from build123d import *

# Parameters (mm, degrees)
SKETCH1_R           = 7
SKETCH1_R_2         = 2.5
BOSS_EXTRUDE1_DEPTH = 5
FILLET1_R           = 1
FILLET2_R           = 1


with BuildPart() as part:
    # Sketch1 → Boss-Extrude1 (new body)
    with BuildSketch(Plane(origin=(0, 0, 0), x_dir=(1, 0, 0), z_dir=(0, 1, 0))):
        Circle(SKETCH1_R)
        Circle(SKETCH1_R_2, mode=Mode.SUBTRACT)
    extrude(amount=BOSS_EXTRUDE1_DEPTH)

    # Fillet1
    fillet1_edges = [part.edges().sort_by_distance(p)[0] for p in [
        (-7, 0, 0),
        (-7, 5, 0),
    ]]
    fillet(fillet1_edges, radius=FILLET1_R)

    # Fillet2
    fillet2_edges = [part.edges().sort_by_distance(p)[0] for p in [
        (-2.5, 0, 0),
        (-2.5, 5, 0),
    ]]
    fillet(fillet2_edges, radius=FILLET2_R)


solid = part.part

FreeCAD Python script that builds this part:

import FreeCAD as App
import Part
import Sketcher


def edges_at(feature, points):
    """Names of the edges that pass closest to the given points."""
    edges = feature.Shape.Edges
    near = lambda p: min(range(len(edges)), key=lambda i: edges[i].distToShape(Part.Vertex(*p))[0])
    return sorted({f"Edge{near(p) + 1}" for p in points})

doc = App.newDocument("Part")
body = doc.addObject("PartDesign::Body", "Body")

sketch1 = doc.addObject("Sketcher::SketchObject", "Sketch")
body.addObject(sketch1)
sketch1.AttachmentSupport = (doc.XZ_Plane, [""])
sketch1.MapMode = "FlatFace"
sketch1.addGeometry(Part.Circle(App.Vector(0, 0, 0), App.Vector(0, 0, 1), 7), False)
sketch1.addGeometry(Part.Circle(App.Vector(0, 0, 0), App.Vector(0, 0, 1), 2.5), False)
sketch1.addConstraint(Sketcher.Constraint("Coincident", 0, 3, -1, 1))
sketch1.addConstraint(Sketcher.Constraint("Coincident", 1, 3, -1, 1))
sketch1.addConstraint(Sketcher.Constraint("Diameter", 0, 14.0))
sketch1.addConstraint(Sketcher.Constraint("Diameter", 1, 5.0))
pad1 = doc.addObject("PartDesign::Pad", "Pad")
body.addObject(pad1)
pad1.Profile = sketch1
pad1.Length = 5
pad1.Reversed = True
doc.recompute()

fillet = doc.addObject("PartDesign::Fillet", "Fillet")
body.addObject(fillet)
fillet.Base = (pad1, edges_at(pad1, [(-7, 0, 0), (-7, 5, 0)]))
fillet.Radius = 1
doc.recompute()

fillet2 = doc.addObject("PartDesign::Fillet", "Fillet001")
body.addObject(fillet2)
fillet2.Base = (fillet, edges_at(fillet, [(-2.5, 0, 0), (-2.5, 5, 0)]))
fillet2.Radius = 1

doc.recompute()
